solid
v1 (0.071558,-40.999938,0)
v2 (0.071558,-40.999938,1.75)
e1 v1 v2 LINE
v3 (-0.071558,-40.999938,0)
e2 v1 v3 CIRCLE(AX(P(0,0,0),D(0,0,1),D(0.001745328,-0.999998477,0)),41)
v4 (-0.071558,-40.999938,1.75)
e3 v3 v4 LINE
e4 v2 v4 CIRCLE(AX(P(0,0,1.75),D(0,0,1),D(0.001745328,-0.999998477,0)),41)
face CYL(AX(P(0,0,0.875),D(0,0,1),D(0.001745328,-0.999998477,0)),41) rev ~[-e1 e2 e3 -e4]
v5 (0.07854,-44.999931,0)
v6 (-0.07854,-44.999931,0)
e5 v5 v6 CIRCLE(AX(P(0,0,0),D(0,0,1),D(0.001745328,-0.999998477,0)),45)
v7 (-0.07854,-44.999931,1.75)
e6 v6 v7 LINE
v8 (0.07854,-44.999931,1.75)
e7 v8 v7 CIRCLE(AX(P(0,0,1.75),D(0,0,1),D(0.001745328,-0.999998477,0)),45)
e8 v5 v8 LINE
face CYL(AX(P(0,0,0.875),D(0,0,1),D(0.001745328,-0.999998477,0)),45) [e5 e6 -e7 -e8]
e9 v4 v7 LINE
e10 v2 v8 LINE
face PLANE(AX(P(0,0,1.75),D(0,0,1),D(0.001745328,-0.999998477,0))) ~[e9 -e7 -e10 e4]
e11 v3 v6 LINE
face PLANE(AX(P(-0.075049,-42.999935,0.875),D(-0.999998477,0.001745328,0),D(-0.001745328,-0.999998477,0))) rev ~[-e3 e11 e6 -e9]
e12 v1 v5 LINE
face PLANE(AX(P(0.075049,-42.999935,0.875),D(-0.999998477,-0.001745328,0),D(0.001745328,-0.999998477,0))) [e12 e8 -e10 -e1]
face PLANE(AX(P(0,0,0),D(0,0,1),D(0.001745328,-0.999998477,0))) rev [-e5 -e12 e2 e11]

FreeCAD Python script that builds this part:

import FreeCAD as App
import Part
import Sketcher

V = App.Vector

doc = App.newDocument("Part")
params = doc.addObject("Spreadsheet::Sheet", "Params")
for row, (alias, value) in enumerate([
    ("sketch1_width", "4 mm"),
    ("sketch1_height", "1.75 mm"),
    ("revolution_angle", "359.8 deg"),
], start=1):
    params.set(f"A{row}", alias)
    params.set(f"B{row}", "=" + value)
    params.setAlias(f"B{row}", alias)

body = doc.addObject("PartDesign::Body", "Body")

# Sketch on an angled plane
sketch1 = body.newObject("Sketcher::SketchObject", "Sketch")
sketch1.Placement = App.Placement(V(0, 0, 0), App.Rotation(V(0.001745328, -0.999998477, 0), V(0, 0, 1), V(-0.999998477, -0.001745328, 0), "ZXY"))
sketch1.addGeometry([
    Part.LineSegment(V(41, 1.8, 0), V(41, 0, 0)),
    Part.LineSegment(V(41, 0, 0), V(45, 0, 0)),
    Part.LineSegment(V(45, 0, 0), V(45, 1.8, 0)),
    Part.LineSegment(V(45, 1.8, 0), V(41, 1.8, 0)),
], False)
sketch1.addConstraint([
    Sketcher.Constraint("Coincident", 0, 2, 1, 1),
    Sketcher.Constraint("Coincident", 1, 2, 2, 1),
    Sketcher.Constraint("Coincident", 2, 2, 3, 1),
    Sketcher.Constraint("Coincident", 3, 2, 0, 1),
    Sketcher.Constraint("Vertical", 0),
    Sketcher.Constraint("Horizontal", 1),
    Sketcher.Constraint("Vertical", 2),
    Sketcher.Constraint("Horizontal", 3),
    Sketcher.Constraint("PointOnObject", 0, 2, -1),
    Sketcher.Constraint("DistanceX", 1, 1, 1, 2, 4.0),
    Sketcher.Constraint("DistanceX", -1, 1, 0, 2, 41.0),
    Sketcher.Constraint("DistanceY", 0, 2, 0, 1, 1.75),
])
sketch1.setExpression("Constraints[9]", "Params.sketch1_width")
sketch1.setExpression("Constraints[11]", "Params.sketch1_height")
revolution = body.newObject("PartDesign::Revolution", "Revolution")
revolution.Profile = sketch1
revolution.ReferenceAxis = (sketch1, ["V_Axis"])
revolution.setExpression("Angle", "Params.revolution_angle")

doc.recompute()
